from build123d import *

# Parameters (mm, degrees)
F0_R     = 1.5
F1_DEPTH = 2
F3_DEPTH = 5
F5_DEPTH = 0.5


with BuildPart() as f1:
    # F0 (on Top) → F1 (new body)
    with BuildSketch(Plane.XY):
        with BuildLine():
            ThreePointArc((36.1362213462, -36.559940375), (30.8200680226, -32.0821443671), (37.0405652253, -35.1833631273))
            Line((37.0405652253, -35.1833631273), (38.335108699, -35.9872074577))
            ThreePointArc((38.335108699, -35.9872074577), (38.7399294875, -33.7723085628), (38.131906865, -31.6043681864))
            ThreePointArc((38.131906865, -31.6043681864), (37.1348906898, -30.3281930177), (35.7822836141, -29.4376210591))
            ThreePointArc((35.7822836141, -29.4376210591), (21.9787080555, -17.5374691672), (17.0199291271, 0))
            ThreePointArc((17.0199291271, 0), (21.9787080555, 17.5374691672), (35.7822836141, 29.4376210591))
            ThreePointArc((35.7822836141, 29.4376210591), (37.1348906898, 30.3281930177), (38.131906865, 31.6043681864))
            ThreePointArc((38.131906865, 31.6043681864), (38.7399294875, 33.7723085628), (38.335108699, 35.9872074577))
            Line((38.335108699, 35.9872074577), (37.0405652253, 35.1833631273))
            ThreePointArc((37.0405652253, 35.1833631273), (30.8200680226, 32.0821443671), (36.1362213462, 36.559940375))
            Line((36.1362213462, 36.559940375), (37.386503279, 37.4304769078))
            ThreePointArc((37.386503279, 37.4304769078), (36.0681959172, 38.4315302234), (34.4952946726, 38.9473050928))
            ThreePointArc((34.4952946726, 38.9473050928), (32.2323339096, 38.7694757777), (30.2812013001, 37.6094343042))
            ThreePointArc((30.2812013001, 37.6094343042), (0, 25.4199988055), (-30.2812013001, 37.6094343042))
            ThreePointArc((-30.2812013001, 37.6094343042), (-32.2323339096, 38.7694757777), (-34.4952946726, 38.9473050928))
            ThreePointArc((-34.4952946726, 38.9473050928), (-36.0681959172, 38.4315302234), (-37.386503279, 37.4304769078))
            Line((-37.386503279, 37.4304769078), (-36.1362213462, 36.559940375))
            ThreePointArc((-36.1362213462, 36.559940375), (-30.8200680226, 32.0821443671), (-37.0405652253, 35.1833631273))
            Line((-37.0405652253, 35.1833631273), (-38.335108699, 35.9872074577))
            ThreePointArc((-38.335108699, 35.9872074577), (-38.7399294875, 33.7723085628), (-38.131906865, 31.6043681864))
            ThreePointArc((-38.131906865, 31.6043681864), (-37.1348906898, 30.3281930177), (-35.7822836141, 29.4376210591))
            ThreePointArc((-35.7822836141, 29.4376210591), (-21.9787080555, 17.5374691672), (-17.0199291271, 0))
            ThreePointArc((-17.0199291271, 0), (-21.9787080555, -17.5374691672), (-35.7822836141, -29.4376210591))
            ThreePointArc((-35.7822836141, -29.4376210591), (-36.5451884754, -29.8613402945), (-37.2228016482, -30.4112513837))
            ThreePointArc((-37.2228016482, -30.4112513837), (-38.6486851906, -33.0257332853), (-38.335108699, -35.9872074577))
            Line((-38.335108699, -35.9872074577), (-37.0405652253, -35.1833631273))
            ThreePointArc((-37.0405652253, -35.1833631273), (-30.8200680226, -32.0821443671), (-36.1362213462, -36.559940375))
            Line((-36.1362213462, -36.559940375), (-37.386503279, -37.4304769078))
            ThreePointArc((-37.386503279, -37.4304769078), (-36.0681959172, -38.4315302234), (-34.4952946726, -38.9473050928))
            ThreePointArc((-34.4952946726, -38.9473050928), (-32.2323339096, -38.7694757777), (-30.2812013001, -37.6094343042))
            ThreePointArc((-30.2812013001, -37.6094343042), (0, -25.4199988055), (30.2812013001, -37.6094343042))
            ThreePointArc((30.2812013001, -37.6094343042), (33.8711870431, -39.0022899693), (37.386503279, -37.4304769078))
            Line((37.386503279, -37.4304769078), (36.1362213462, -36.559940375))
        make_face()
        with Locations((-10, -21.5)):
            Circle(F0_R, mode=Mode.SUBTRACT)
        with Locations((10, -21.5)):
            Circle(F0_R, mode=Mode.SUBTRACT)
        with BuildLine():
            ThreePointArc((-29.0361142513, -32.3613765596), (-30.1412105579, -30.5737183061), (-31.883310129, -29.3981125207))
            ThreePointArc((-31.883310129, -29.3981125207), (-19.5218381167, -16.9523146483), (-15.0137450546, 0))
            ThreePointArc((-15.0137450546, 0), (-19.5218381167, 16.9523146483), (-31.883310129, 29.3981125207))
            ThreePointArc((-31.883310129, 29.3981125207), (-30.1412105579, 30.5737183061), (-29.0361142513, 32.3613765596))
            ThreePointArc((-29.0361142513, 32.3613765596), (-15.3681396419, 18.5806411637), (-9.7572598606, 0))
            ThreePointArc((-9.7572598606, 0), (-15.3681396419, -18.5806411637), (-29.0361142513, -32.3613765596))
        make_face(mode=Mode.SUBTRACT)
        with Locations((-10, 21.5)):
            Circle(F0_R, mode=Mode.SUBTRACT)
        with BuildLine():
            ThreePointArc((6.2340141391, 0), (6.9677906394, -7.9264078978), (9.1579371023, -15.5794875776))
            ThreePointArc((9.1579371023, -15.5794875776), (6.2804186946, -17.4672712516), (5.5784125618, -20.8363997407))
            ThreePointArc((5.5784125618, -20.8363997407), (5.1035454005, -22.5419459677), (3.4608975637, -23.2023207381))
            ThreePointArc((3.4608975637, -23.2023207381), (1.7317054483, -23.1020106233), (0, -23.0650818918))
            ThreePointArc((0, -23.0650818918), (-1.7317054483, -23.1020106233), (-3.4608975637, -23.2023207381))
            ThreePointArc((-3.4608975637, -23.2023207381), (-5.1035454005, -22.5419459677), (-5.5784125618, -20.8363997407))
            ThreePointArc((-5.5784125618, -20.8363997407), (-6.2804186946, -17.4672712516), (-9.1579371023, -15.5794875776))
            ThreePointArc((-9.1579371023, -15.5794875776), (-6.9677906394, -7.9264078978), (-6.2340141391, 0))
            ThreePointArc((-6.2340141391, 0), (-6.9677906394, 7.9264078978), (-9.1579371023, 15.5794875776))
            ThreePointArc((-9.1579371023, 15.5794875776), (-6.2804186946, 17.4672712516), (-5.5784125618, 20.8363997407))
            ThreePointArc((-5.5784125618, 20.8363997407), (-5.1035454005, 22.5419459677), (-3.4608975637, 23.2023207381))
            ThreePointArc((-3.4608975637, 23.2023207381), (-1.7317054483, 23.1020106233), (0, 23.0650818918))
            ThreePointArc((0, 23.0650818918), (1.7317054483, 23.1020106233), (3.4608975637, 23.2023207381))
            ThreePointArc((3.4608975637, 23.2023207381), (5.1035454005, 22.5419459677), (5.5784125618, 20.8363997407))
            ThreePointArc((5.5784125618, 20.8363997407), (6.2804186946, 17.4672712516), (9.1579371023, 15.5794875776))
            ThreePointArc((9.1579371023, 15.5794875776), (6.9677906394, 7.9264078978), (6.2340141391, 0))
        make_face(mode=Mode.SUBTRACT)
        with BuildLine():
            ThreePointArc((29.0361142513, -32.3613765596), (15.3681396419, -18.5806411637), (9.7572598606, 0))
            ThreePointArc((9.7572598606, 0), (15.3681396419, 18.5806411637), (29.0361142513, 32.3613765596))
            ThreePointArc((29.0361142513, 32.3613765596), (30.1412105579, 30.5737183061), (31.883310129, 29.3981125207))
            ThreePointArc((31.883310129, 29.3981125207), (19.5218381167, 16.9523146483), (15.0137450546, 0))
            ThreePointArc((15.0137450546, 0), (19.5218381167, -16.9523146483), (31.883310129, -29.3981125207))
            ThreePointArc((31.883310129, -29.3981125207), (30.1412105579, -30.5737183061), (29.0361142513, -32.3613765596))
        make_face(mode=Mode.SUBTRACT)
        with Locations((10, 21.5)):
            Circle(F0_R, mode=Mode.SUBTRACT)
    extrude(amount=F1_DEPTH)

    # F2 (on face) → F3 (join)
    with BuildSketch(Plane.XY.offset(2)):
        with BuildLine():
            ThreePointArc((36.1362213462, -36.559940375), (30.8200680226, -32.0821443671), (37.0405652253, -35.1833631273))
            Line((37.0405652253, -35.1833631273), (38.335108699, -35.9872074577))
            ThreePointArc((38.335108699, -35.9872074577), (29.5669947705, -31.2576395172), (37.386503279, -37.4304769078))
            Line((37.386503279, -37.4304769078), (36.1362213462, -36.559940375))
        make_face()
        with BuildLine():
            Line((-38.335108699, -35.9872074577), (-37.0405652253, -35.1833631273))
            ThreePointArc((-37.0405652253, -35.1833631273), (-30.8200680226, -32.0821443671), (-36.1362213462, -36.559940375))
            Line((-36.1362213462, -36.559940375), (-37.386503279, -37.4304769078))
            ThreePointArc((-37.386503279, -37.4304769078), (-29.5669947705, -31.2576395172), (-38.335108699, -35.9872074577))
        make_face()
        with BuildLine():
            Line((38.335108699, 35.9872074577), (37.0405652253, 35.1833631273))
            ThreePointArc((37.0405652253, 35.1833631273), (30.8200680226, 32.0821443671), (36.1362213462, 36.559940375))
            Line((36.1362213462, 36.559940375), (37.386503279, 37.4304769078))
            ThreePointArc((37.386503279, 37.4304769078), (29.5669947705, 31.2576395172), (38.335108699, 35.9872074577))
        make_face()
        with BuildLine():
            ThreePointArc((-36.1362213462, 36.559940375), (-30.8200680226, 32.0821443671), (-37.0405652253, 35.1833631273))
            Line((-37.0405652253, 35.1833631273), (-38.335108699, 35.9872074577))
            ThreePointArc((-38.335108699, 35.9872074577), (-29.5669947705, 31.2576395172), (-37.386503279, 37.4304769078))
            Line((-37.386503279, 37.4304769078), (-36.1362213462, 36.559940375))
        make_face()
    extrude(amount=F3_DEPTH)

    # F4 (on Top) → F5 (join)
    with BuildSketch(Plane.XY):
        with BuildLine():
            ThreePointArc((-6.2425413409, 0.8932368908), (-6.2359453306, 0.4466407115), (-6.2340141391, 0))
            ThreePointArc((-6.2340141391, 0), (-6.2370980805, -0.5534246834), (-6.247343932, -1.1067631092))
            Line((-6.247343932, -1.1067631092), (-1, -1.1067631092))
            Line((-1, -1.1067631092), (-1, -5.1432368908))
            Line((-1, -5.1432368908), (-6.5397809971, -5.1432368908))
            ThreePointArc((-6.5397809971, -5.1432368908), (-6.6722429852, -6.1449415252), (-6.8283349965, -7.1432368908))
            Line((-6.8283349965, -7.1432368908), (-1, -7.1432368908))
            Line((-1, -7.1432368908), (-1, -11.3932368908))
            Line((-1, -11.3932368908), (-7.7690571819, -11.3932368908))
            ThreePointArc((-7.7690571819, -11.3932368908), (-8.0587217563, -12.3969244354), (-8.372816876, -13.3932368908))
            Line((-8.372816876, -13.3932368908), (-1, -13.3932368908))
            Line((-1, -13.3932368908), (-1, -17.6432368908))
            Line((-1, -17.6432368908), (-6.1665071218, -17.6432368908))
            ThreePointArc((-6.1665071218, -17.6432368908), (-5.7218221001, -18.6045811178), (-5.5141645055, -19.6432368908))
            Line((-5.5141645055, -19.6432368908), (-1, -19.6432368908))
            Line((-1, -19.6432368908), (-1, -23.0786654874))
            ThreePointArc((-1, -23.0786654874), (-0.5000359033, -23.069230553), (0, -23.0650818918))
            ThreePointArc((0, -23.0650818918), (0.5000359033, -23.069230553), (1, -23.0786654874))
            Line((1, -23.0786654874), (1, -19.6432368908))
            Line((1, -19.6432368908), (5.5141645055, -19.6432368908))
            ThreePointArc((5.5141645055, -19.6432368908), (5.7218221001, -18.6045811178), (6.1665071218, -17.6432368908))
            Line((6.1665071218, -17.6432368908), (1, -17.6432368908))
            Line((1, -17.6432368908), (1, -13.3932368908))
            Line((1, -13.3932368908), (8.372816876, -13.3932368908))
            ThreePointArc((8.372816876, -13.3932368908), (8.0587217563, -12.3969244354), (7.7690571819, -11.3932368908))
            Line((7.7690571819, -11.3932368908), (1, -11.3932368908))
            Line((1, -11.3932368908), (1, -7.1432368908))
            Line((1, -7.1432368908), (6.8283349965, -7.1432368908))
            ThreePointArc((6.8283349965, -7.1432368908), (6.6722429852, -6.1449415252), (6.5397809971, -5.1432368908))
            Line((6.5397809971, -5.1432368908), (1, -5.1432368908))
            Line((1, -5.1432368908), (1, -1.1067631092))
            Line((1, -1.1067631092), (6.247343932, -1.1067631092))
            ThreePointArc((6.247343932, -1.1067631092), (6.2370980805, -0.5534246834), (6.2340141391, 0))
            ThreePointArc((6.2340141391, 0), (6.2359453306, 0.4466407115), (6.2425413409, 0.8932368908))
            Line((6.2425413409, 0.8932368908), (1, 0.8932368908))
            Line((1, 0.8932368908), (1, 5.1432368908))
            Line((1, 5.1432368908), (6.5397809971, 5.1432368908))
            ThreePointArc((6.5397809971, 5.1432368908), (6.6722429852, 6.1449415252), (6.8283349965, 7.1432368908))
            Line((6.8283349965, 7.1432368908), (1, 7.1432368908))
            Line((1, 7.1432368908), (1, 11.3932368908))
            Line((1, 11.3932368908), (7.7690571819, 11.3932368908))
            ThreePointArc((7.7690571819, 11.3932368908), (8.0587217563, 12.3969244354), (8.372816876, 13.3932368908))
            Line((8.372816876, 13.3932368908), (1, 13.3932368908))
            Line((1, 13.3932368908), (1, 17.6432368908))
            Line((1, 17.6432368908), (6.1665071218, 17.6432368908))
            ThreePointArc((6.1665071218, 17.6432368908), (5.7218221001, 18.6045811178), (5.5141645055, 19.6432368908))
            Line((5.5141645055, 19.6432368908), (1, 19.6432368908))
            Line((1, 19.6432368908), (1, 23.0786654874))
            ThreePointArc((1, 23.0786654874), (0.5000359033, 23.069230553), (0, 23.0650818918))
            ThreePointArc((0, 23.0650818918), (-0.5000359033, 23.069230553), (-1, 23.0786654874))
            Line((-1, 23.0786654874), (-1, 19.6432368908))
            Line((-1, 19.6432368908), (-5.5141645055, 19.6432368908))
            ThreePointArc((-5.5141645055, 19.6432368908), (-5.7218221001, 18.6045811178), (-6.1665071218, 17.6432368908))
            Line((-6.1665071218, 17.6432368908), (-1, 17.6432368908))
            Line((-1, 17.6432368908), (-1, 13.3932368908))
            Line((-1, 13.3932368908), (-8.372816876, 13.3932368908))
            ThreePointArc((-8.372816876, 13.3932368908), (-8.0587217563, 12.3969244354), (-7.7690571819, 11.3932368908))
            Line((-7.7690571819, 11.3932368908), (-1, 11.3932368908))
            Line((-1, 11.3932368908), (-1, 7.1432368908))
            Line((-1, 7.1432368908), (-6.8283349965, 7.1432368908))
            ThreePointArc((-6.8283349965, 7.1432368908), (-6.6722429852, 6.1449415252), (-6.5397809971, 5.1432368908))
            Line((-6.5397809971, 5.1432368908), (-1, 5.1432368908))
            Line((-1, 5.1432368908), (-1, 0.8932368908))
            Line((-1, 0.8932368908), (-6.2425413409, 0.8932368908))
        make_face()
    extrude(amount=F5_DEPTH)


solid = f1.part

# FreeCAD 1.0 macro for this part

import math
import FreeCAD as App
import Part
import Sketcher

V = App.Vector
Q = App.Units.Quantity

doc = App.newDocument("Part")
params = doc.addObject("Spreadsheet::Sheet", "Params")
for row, (alias, value) in enumerate([
    ("sketch1_diameter", "3 mm"),
    ("sketch1_radius", "5 mm"),
    ("sketch1_radius2", "2 mm"),
    ("sketch1_radius3", "3.5 mm"),
    ("sketch1_radius4", "4.5 mm"),
    ("pad1_length", "2 mm"),
    ("sketch2_radius", "5 mm"),
    ("sketch2_radius2", "3.5 mm"),
    ("pad2_length", "5 mm"),
    ("sketch3_radius", "4.5 mm"),
    ("sketch3_height", "4.25 mm"),
    ("pad3_length", "0.5 mm"),
], start=1):
    params.set(f"A{row}", alias)
    params.set(f"B{row}", "=" + value)
    params.setAlias(f"B{row}", alias)

body = doc.addObject("PartDesign::Body", "Body")

# Sketch on XY plane
sketch1 = body.newObject("Sketcher::SketchObject", "Sketch")
sketch1.AttachmentSupport = (doc.getObject("XY_Plane"), [""])
sketch1.MapMode = "FlatFace"
sketch1.addGeometry([
    Part.ArcOfCircle(Part.Circle(V(33.745295, -34.003875, 0), V(0, 0, 1), 3.5), math.radians(-19.693995), math.radians(313.088084)),  # 0
    Part.LineSegment(V(37.040565, -35.183363, 0), V(38.335109, -35.987207, 0)),  # 1
    Part.ArcOfCircle(Part.Circle(V(33.745295, -34.003875, 0), V(0, 0, 1), 5), math.radians(-23.369948), math.radians(28.678961)),  # 2
    Part.ArcOfCircle(Part.Circle(V(33.745295, -34.003875, 0), V(0, 0, 1), 5), math.radians(28.678962), math.radians(65.958528)),  # 3
    Part.ArcOfCircle(Part.Circle(V(48.683787, -0.516727, 0), V(0, 0, 1), 31.668074), math.radians(179.065065), math.radians(245.958528)),  # 4
    Part.ArcOfCircle(Part.Circle(V(48.683787, 0.516727, 0), V(0, 0, 1), 31.668074), math.radians(114.041472), math.radians(180.934935)),  # 5
    Part.ArcOfCircle(Part.Circle(V(33.745295, 34.003875, 0), V(0, 0, 1), 5), math.radians(-65.958528), math.radians(-28.678962)),  # 6
    Part.ArcOfCircle(Part.Circle(V(33.745295, 34.003875, 0), V(0, 0, 1), 5), math.radians(-28.678961), math.radians(23.369948)),  # 7
    Part.LineSegment(V(38.335109, 35.987207, 0), V(37.040565, 35.183363, 0)),  # 8
    Part.ArcOfCircle(Part.Circle(V(33.745295, 34.003875, 0), V(0, 0, 1), 3.5), math.radians(46.911916), math.radians(379.693995)),  # 9
    Part.LineSegment(V(36.136221, 36.55994, 0), V(37.386503, 37.430477, 0)),  # 10
    Part.ArcOfCircle(Part.Circle(V(33.745295, 34.003875, 0), V(0, 0, 1), 5), math.radians(43.260807), math.radians(81.373073)),  # 11
    Part.ArcOfCircle(Part.Circle(V(33.745295, 34.003875, 0), V(0, 0, 1), 5), math.radians(81.373073), math.radians(133.853648)),  # 12
    Part.ArcOfCircle(Part.Circle(V(0, 69.127252, 0), V(0, 0, 1), 43.707253), math.radians(-133.853648), math.radians(-46.146352)),  # 13
    Part.ArcOfCircle(Part.Circle(V(-33.745295, 34.003875, 0), V(0, 0, 1), 5), math.radians(46.146352), math.radians(98.626927)),  # 14
    Part.ArcOfCircle(Part.Circle(V(-33.745295, 34.003875, 0), V(0, 0, 1), 5), math.radians(98.626927), math.radians(136.739193)),  # 15
    Part.LineSegment(V(-37.386503, 37.430477, 0), V(-36.136221, 36.55994, 0)),  # 16
    Part.ArcOfCircle(Part.Circle(V(-33.745295, 34.003875, 0), V(0, 0, 1), 3.5), math.radians(160.306005), math.radians(493.088084)),  # 17
    Part.LineSegment(V(-37.040565, 35.183363, 0), V(-38.335109, 35.987207, 0)),  # 18
    Part.ArcOfCircle(Part.Circle(V(-33.745295, 34.003875, 0), V(0, 0, 1), 5), math.radians(156.630052), math.radians(208.678961)),  # 19
    Part.ArcOfCircle(Part.Circle(V(-33.745295, 34.003875, 0), V(0, 0, 1), 5), math.radians(-151.321038), math.radians(-114.041472)),  # 20
    Part.ArcOfCircle(Part.Circle(V(-48.683787, 0.516727, 0), V(0, 0, 1), 31.668074), math.radians(-0.934935), math.radians(65.958528)),  # 21
    Part.ArcOfCircle(Part.Circle(V(-48.683787, -0.516727, 0), V(0, 0, 1), 31.668074), math.radians(-65.958528), math.radians(0.934935)),  # 22
    Part.ArcOfCircle(Part.Circle(V(-33.745295, -34.003875, 0), V(0, 0, 1), 5), math.radians(114.041472), math.radians(134.067185)),  # 23
    Part.ArcOfCircle(Part.Circle(V(-33.745295, -34.003875, 0), V(0, 0, 1), 5), math.radians(134.067185), math.radians(203.369948)),  # 24
    Part.LineSegment(V(-38.335109, -35.987207, 0), V(-37.040565, -35.183363, 0)),  # 25
    Part.ArcOfCircle(Part.Circle(V(-33.745295, -34.003875, 0), V(0, 0, 1), 3.5), math.radians(-133.088084), math.radians(199.693995)),  # 26
    Part.LineSegment(V(-36.136221, -36.55994, 0), V(-37.386503, -37.430477, 0)),  # 27
    Part.ArcOfCircle(Part.Circle(V(-33.745295, -34.003875, 0), V(0, 0, 1), 5), math.radians(-136.739193), math.radians(-98.626927)),  # 28
    Part.ArcOfCircle(Part.Circle(V(-33.745295, -34.003875, 0), V(0, 0, 1), 5), math.radians(-98.626927), math.radians(-46.146352)),  # 29
    Part.ArcOfCircle(Part.Circle(V(0, -69.127252, 0), V(0, 0, 1), 43.707253), math.radians(46.146352), math.radians(133.853648)),  # 30
    Part.ArcOfCircle(Part.Circle(V(33.745295, -34.003875, 0), V(0, 0, 1), 5), math.radians(-133.853648), math.radians(-43.260807)),  # 31
    Part.LineSegment(V(37.386503, -37.430477, 0), V(36.136221, -36.55994, 0)),  # 32
    Part.Circle(V(-10, -21.5, 0), V(0, 0, 1), 1.5),  # 33
    Part.ArcOfCircle(Part.Circle(V(-49.877336, 1.977748, 0), V(0, 0, 1), 40.168794), math.radians(-58.745452), math.radians(-2.822152)),  # 34
    Part.ArcOfCircle(Part.Circle(V(-33.74665, -34.037936, 0), V(0, 0, 1), 5), math.radians(19.591508), math.radians(68.119747)),  # 35
    Part.ArcOfCircle(Part.Circle(V(-48.997195, -0.038424, 0), V(0, 0, 1), 33.983471), math.radians(-59.761913), math.radians(0.064783)),  # 36
    Part.ArcOfCircle(Part.Circle(V(-48.997195, 0.038424, 0), V(0, 0, 1), 33.983471), math.radians(-0.064783), math.radians(59.761913)),  # 37
    Part.ArcOfCircle(Part.Circle(V(-33.74665, 34.037936, 0), V(0, 0, 1), 5), math.radians(-68.119747), math.radians(-19.591508)),  # 38
    Part.ArcOfCircle(Part.Circle(V(-49.877336, -1.977748, 0), V(0, 0, 1), 40.168794), math.radians(2.822152), math.radians(58.745452)),  # 39
    Part.Circle(V(10, -21.5, 0), V(0, 0, 1), 1.5),  # 40
    Part.Circle(V(-10, 21.5, 0), V(0, 0, 1), 1.5),  # 41
    Part.ArcOfCircle(Part.Circle(V(48.997195, 0.038424, 0), V(0, 0, 1), 42.763198), math.radians(158.689532), math.radians(180.051483)),  # 42
    Part.ArcOfCircle(Part.Circle(V(48.997195, -0.038424, 0), V(0, 0, 1), 42.763198), math.radians(179.948517), math.radians(201.310468)),  # 43
    Part.ArcOfCircle(Part.Circle(V(10, -20, 0), V(0, 0, 1), 4.5), math.radians(100.785055), math.radians(190.711662)),  # 44
    Part.ArcOfCircle(Part.Circle(V(3.613263, -21.208133, 0), V(0, 0, 1), 2), math.radians(-94.36917), math.radians(10.711662)),  # 45
    Part.ArcOfCircle(Part.Circle(V(-0.142381, -70.362849, 0), V(0, 0, 1), 47.297981), math.radians(85.63083), math.radians(89.827522)),  # 46
    Part.ArcOfCircle(Part.Circle(V(0.142381, -70.362849, 0), V(0, 0, 1), 47.297981), math.radians(90.172478), math.radians(94.36917)),  # 47
    Part.ArcOfCircle(Part.Circle(V(-3.613263, -21.208133, 0), V(0, 0, 1), 2), math.radians(169.288338), math.radians(274.36917)),  # 48
    Part.ArcOfCircle(Part.Circle(V(-10, -20, 0), V(0, 0, 1), 4.5), math.radians(-10.711662), math.radians(79.214945)),  # 49
    Part.ArcOfCircle(Part.Circle(V(-48.997195, -0.038424, 0), V(0, 0, 1), 42.763198), math.radians(-21.310468), math.radians(0.051483)),  # 50
    Part.ArcOfCircle(Part.Circle(V(-48.997195, 0.038424, 0), V(0, 0, 1), 42.763198), math.radians(-0.051483), math.radians(21.310468)),  # 51
    Part.ArcOfCircle(Part.Circle(V(-10, 20, 0), V(0, 0, 1), 4.5), math.radians(-79.214945), math.radians(10.711662)),  # 52
    Part.ArcOfCircle(Part.Circle(V(-3.613263, 21.208133, 0), V(0, 0, 1), 2), math.radians(85.63083), math.radians(190.711662)),  # 53
    Part.ArcOfCircle(Part.Circle(V(0.142381, 70.362849, 0), V(0, 0, 1), 47.297981), math.radians(-94.36917), math.radians(-90.172478)),  # 54
    Part.ArcOfCircle(Part.Circle(V(-0.142381, 70.362849, 0), V(0, 0, 1), 47.297981), math.radians(-89.827522), math.radians(-85.63083)),  # 55
    Part.ArcOfCircle(Part.Circle(V(3.613263, 21.208133, 0), V(0, 0, 1), 2), math.radians(-10.711662), math.radians(94.36917)),  # 56
    Part.ArcOfCircle(Part.Circle(V(10, 20, 0), V(0, 0, 1), 4.5), math.radians(169.288338), math.radians(259.214945)),  # 57
    Part.ArcOfCircle(Part.Circle(V(33.74665, -34.037936, 0), V(0, 0, 1), 5), math.radians(111.880253), math.radians(160.408492)),  # 58
    Part.ArcOfCircle(Part.Circle(V(49.877336, 1.977748, 0), V(0, 0, 1), 40.168794), math.radians(-177.177848), math.radians(-121.254548)),  # 59
    Part.ArcOfCircle(Part.Circle(V(49.877336, -1.977748, 0), V(0, 0, 1), 40.168794), math.radians(121.254548), math.radians(177.177848)),  # 60
    Part.ArcOfCircle(Part.Circle(V(33.74665, 34.037936, 0), V(0, 0, 1), 5), math.radians(-160.408492), math.radians(-111.880253)),  # 61
    Part.ArcOfCircle(Part.Circle(V(48.997195, 0.038424, 0), V(0, 0, 1), 33.983471), math.radians(120.238087), math.radians(180.064783)),  # 62
    Part.ArcOfCircle(Part.Circle(V(48.997195, -0.038424, 0), V(0, 0, 1), 33.983471), math.radians(179.935217), math.radians(239.761913)),  # 63
    Part.Circle(V(10, 21.5, 0), V(0, 0, 1), 1.5),  # 64
], False)
sketch1.addConstraint([
    Sketcher.Constraint("Coincident", 0, 1, 1, 1),
    Sketcher.Constraint("Coincident", 1, 2, 2, 1),
    Sketcher.Constraint("Tangent", 2, 2, 3, 1),
    Sketcher.Constraint("Tangent", 3, 2, 4, 2),
    Sketcher.Constraint("Coincident", 4, 1, 5, 2),
    Sketcher.Constraint("Tangent", 5, 1, 6, 1),
    Sketcher.Constraint("Tangent", 6, 2, 7, 1),
    Sketcher.Constraint("Coincident", 7, 2, 8, 1),
    Sketcher.Constraint("Coincident", 8, 2, 9, 2),
    Sketcher.Constraint("Coincident", 9, 1, 10, 1),
    Sketcher.Constraint("Coincident", 10, 2, 11, 1),
    Sketcher.Constraint("Tangent", 11, 2, 12, 1),
    Sketcher.Constraint("Tangent", 12, 2, 13, 2),
    Sketcher.Constraint("Tangent", 13, 1, 14, 1),
    Sketcher.Constraint("Tangent", 14, 2, 15, 1),
    Sketcher.Constraint("Coincident", 15, 2, 16, 1),
    Sketcher.Constraint("Coincident", 16, 2, 17, 2),
    Sketcher.Constraint("Coincident", 17, 1, 18, 1),
    Sketcher.Constraint("Coincident", 18, 2, 19, 1),
    Sketcher.Constraint("Tangent", 19, 2, 20, 1),
    Sketcher.Constraint("Tangent", 20, 2, 21, 2),
    Sketcher.Constraint("Coincident", 21, 1, 22, 2),
    Sketcher.Constraint("Tangent", 22, 1, 23, 1),
    Sketcher.Constraint("Tangent", 23, 2, 24, 1),
    Sketcher.Constraint("Coincident", 24, 2, 25, 1),
    Sketcher.Constraint("Coincident", 25, 2, 26, 2),
    Sketcher.Constraint("Coincident", 26, 1, 27, 1),
    Sketcher.Constraint("Coincident", 27, 2, 28, 1),
    Sketcher.Constraint("Tangent", 28, 2, 29, 1),
    Sketcher.Constraint("Tangent", 29, 2, 30, 2),
    Sketcher.Constraint("Tangent", 30, 1, 31, 1),
    Sketcher.Constraint("Coincident", 31, 2, 32, 1),
    Sketcher.Constraint("Coincident", 32, 2, 0, 2),
    Sketcher.Constraint("Coincident", 34, 1, 35, 1),
    Sketcher.Constraint("Coincident", 35, 2, 36, 1),
    Sketcher.Constraint("Coincident", 36, 2, 37, 1),
    Sketcher.Constraint("Coincident", 37, 2, 38, 1),
    Sketcher.Constraint("Coincident", 38, 2, 39, 2),
    Sketcher.Constraint("Coincident", 39, 1, 34, 2),
    Sketcher.Constraint("Coincident", 42, 2, 43, 1),
    Sketcher.Constraint("Coincident", 43, 2, 44, 1),
    Sketcher.Constraint("Tangent", 44, 2, 45, 2),
    Sketcher.Constraint("Tangent", 45, 1, 46, 1),
    Sketcher.Constraint("Coincident", 46, 2, 47, 1),
    Sketcher.Constraint("Tangent", 47, 2, 48, 2),
    Sketcher.Constraint("Tangent", 48, 1, 49, 1),
    Sketcher.Constraint("Coincident", 49, 2, 50, 1),
    Sketcher.Constraint("Coincident", 50, 2, 51, 1),
    Sketcher.Constraint("Coincident", 51, 2, 52, 1),
    Sketcher.Constraint("Tangent", 52, 2, 53, 2),
    Sketcher.Constraint("Tangent", 53, 1, 54, 1),
    Sketcher.Constraint("Coincident", 54, 2, 55, 1),
    Sketcher.Constraint("Tangent", 55, 2, 56, 2),
    Sketcher.Constraint("Tangent", 56, 1, 57, 1),
    Sketcher.Constraint("Coincident", 57, 2, 42, 1),
    Sketcher.Constraint("Coincident", 58, 2, 59, 2),
    Sketcher.Constraint("Coincident", 59, 1, 60, 2),
    Sketcher.Constraint("Coincident", 60, 1, 61, 1),
    Sketcher.Constraint("Coincident", 61, 2, 62, 1),
    Sketcher.Constraint("Coincident", 62, 2, 63, 1),
    Sketcher.Constraint("Coincident", 63, 2, 58, 1),
    Sketcher.Constraint("Coincident", 2, 3, 0, 3),
    Sketcher.Constraint("Coincident", 9, 3, 6, 3),
    Sketcher.Constraint("Coincident", 11, 3, 6, 3),
    Sketcher.Constraint("Coincident", 17, 3, 14, 3),
    Sketcher.Constraint("Coincident", 19, 3, 14, 3),
    Sketcher.Constraint("Coincident", 26, 3, 23, 3),
    Sketcher.Constraint("Coincident", 28, 3, 23, 3),
    Sketcher.Constraint("Coincident", 31, 3, 0, 3),
    Sketcher.Constraint("Coincident", 50, 3, 36, 3),
    Sketcher.Constraint("Coincident", 51, 3, 37, 3),
    Sketcher.Constraint("Coincident", 62, 3, 42, 3),
    Sketcher.Constraint("Coincident", 63, 3, 43, 3),
    Sketcher.Constraint("Equal", 2, 3),
    Sketcher.Constraint("Equal", 4, 5),
    Sketcher.Constraint("Equal", 3, 6),
    Sketcher.Constraint("Equal", 6, 7),
    Sketcher.Constraint("Equal", 0, 9),
    Sketcher.Constraint("Equal", 7, 11),
    Sketcher.Constraint("Equal", 11, 12),
    Sketcher.Constraint("Equal", 12, 14),
    Sketcher.Constraint("Equal", 14, 15),
    Sketcher.Constraint("Equal", 9, 17),
    Sketcher.Constraint("Equal", 15, 19),
    Sketcher.Constraint("Equal", 19, 20),
    Sketcher.Constraint("Equal", 5, 21),
    Sketcher.Constraint("Equal", 21, 22),
    Sketcher.Constraint("Equal", 20, 23),
    Sketcher.Constraint("Equal", 23, 24),
    Sketcher.Constraint("Equal", 17, 26),
    Sketcher.Constraint("Equal", 24, 28),
    Sketcher.Constraint("Equal", 28, 29),
    Sketcher.Constraint("Equal", 13, 30),
    Sketcher.Constraint("Equal", 29, 31),
    Sketcher.Constraint("Equal", 31, 35),
    Sketcher.Constraint("Equal", 36, 37),
    Sketcher.Constraint("Equal", 35, 38),
    Sketcher.Constraint("Equal", 34, 39),
    Sketcher.Constraint("Equal", 33, 40),
    Sketcher.Constraint("Equal", 40, 41),
    Sketcher.Constraint("Equal", 42, 43),
    Sketcher.Constraint("Equal", 46, 47),
    Sketcher.Constraint("Equal", 45, 48),
    Sketcher.Constraint("Equal", 44, 49),
    Sketcher.Constraint("Equal", 43, 50),
    Sketcher.Constraint("Equal", 50, 51),
    Sketcher.Constraint("Equal", 49, 52),
    Sketcher.Constraint("Equal", 48, 53),
    Sketcher.Constraint("Equal", 47, 54),
    Sketcher.Constraint("Equal", 54, 55),
    Sketcher.Constraint("Equal", 53, 56),
    Sketcher.Constraint("Equal", 52, 57),
    Sketcher.Constraint("Equal", 38, 58),
    Sketcher.Constraint("Equal", 39, 59),
    Sketcher.Constraint("Equal", 59, 60),
    Sketcher.Constraint("Equal", 58, 61),
    Sketcher.Constraint("Equal", 37, 62),
    Sketcher.Constraint("Equal", 62, 63),
    Sketcher.Constraint("Equal", 41, 64),
    Sketcher.Constraint("Symmetric", 0, 3, 14, 3, -1, 1),
    Sketcher.Constraint("Symmetric", 5, 3, 22, 3, -1, 1),
    Sketcher.Constraint("Symmetric", 40, 3, 41, 3, -1, 1),
    Sketcher.Constraint("Symmetric", 36, 3, 42, 3, -1, 1),
    Sketcher.Constraint("Symmetric", 37, 3, 43, 3, -1, 1),
    Sketcher.Constraint("Symmetric", 44, 3, 52, 3, -1, 1),
    Sketcher.Constraint("Symmetric", 46, 3, 54, 3, -1, 1),
    Sketcher.Constraint("Symmetric", 47, 3, 55, 3, -1, 1),
    Sketcher.Constraint("Symmetric", 49, 3, 57, 3, -1, 1),
    Sketcher.Constraint("Symmetric", 38, 3, 58, 3, -1, 1),
    Sketcher.Constraint("Symmetric", 39, 3, 59, 3, -1, 1),
    Sketcher.Constraint("Symmetric", 34, 3, 60, 3, -1, 1),
    Sketcher.Constraint("Symmetric", 35, 3, 61, 3, -1, 1),
    Sketcher.Constraint("Symmetric", 33, 3, 64, 3, -1, 1),
    Sketcher.Constraint("Symmetric", 7, 2, 24, 2, -1, 1),
    Sketcher.Constraint("Symmetric", 6, 3, 14, 3, -2),
    Sketcher.Constraint("Symmetric", 33, 3, 40, 3, -2),
    Sketcher.Constraint("Symmetric", 37, 3, 42, 3, -2),
    Sketcher.Constraint("Symmetric", 46, 3, 47, 3, -2),
    Sketcher.Constraint("Symmetric", 44, 3, 49, 3, -2),
    Sketcher.Constraint("Symmetric", 35, 3, 58, 3, -2),
    Sketcher.Constraint("Symmetric", 34, 3, 59, 3, -2),
    Sketcher.Constraint("Symmetric", 4, 1, 21, 1, -2),
    Sketcher.Constraint("Parallel", 1, 18),
    Sketcher.Constraint("Parallel", 8, 25),
    Sketcher.Constraint("Parallel", 10, 27),
    Sketcher.Constraint("Parallel", 16, 32),
    Sketcher.Constraint("Horizontal", 11, 2, 14, 2),
    Sketcher.Constraint("Horizontal", 10, 2, 15, 2),
    Sketcher.Constraint("Horizontal", 9, 1, 16, 2),
    Sketcher.Constraint("Horizontal", 8, 2, 17, 1),
    Sketcher.Constraint("Horizontal", 7, 2, 18, 2),
    Sketcher.Constraint("Horizontal", 6, 2, 19, 2),
    Sketcher.Constraint("Horizontal", 1, 2, 24, 2),
    Sketcher.Constraint("Horizontal", 27, 2, 31, 2),
    Sketcher.Constraint("Vertical", 40, 3, 44, 3),
    Sketcher.Constraint("Vertical", 2, 2, 6, 2),
    Sketcher.Constraint("Vertical", 16, 2, 26, 1),
    Sketcher.Constraint("Vertical", 14, 2, 28, 2),
    Sketcher.Constraint("Diameter", 33, Q("3 mm")),
    Sketcher.Constraint("Radius", 2, Q("5 mm")),
    Sketcher.Constraint("Radius", 45, Q("2 mm")),
    Sketcher.Constraint("Radius", 0, Q("3.5 mm")),
    Sketcher.Constraint("Radius", 44, Q("4.5 mm")),
    Sketcher.Constraint("DistanceX", 33, 3, -1, 1, Q("10 mm")),
    Sketcher.Constraint("DistanceY", 44, 3, -1, 1, Q("20 mm")),
    Sketcher.Constraint("DistanceY", 33, 3, -1, 1, Q("21.5 mm")),
    Sketcher.Constraint("Radius", 36, Q("33.983471 mm")),
    Sketcher.Constraint("Radius", 46, Q("47.297981 mm")),
    Sketcher.Constraint("Radius", 4, Q("31.668074 mm")),
    Sketcher.Constraint("Radius", 13, Q("43.707253 mm")),
    Sketcher.Constraint("Radius", 34, Q("40.168794 mm")),
    Sketcher.Constraint("Radius", 42, Q("42.763198 mm")),
    Sketcher.Constraint("DistanceX", -1, 1, 12, 2, Q("30.281201 mm")),
    Sketcher.Constraint("DistanceX", 23, 2, -1, 1, Q("37.222802 mm")),
    Sketcher.Constraint("DistanceY", 44, 2, -1, 1, Q("20.8364 mm")),
    Sketcher.Constraint("DistanceX", 35, 3, -1, 1, Q("33.74665 mm")),
    Sketcher.Constraint("DistanceX", 46, 3, -1, 1, Q("0.142381 mm")),
    Sketcher.Constraint("DistanceX", -1, 1, 1, 2, Q("38.335109 mm")),
    Sketcher.Constraint("DistanceY", 2, 2, -1, 1, Q("31.604368 mm")),
    Sketcher.Constraint("DistanceY", 3, 2, -1, 1, Q("29.437621 mm")),
    Sketcher.Constraint("DistanceX", -1, 1, 4, 1, Q("17.019929 mm")),
    Sketcher.Constraint("DistanceX", -1, 1, 9, 1, Q("36.136221 mm")),
    Sketcher.Constraint("DistanceX", 35, 2, -1, 1, Q("31.88331 mm")),
    Sketcher.Constraint("DistanceX", 39, 1, -1, 1, Q("9.75726 mm")),
    Sketcher.Constraint("Distance", 1, Q("1.523814 mm")),
    Sketcher.Constraint("Distance", 10, Q("1.523496 mm")),
    Sketcher.Constraint("DistanceX", 34, 3, -1, 1, Q("49.877336 mm")),
    Sketcher.Constraint("DistanceY", 35, 3, -1, 1, Q("34.037936 mm")),
    Sketcher.Constraint("DistanceX", 36, 3, -1, 1, Q("48.997195 mm")),
    Sketcher.Constraint("DistanceX", -1, 1, 11, 2, Q("34.495295 mm")),
])
sketch1.setExpression("Constraints[158]", "Params.sketch1_diameter")
sketch1.setExpression("Constraints[159]", "Params.sketch1_radius")
sketch1.setExpression("Constraints[160]", "Params.sketch1_radius2")
sketch1.setExpression("Constraints[161]", "Params.sketch1_radius3")
sketch1.setExpression("Constraints[162]", "Params.sketch1_radius4")
pad1 = body.newObject("PartDesign::Pad", "Pad")
pad1.Profile = sketch1
pad1.setExpression("Length", "Params.pad1_length")

# Sketch on XY plane
sketch2 = body.newObject("Sketcher::SketchObject", "Sketch001")
sketch2.AttachmentSupport = (doc.getObject("XY_Plane"), [""])
sketch2.MapMode = "FlatFace"
sketch2.AttachmentOffset = App.Placement(V(0, 0, 2), App.Rotation())
sketch2.addGeometry([
    Part.ArcOfCircle(Part.Circle(V(33.7, -34, 0), V(0, 0, 1), 3.5), math.radians(-20), math.radians(313)),  # 0
    Part.LineSegment(V(37, -35.2, 0), V(38.3, -36, 0)),  # 1
    Part.ArcOfCircle(Part.Circle(V(33.7, -34, 0), V(0, 0, 1), 5), math.radians(-23), math.radians(317)),  # 2
    Part.LineSegment(V(37.4, -37.4, 0), V(36.1, -36.6, 0)),  # 3
    Part.LineSegment(V(-38.3, -36, 0), V(-37, -35.2, 0)),  # 4
    Part.ArcOfCircle(Part.Circle(V(-33.7, -34, 0), V(0, 0, 1), 3.5), math.radians(-133), math.radians(200)),  # 5
    Part.LineSegment(V(-36.1, -36.6, 0), V(-37.4, -37.4, 0)),  # 6
    Part.ArcOfCircle(Part.Circle(V(-33.7, -34, 0), V(0, 0, 1), 5), math.radians(-137), math.radians(203)),  # 7
    Part.LineSegment(V(38.3, 36, 0), V(37, 35.2, 0)),  # 8
    Part.ArcOfCircle(Part.Circle(V(33.7, 34, 0), V(0, 0, 1), 3.5), math.radians(47), math.radians(380)),  # 9
    Part.LineSegment(V(36.1, 36.6, 0), V(37.4, 37.4, 0)),  # 10
    Part.ArcOfCircle(Part.Circle(V(33.7, 34, 0), V(0, 0, 1), 5), math.radians(43), math.radians(383)),  # 11
    Part.ArcOfCircle(Part.Circle(V(-33.7, 34, 0), V(0, 0, 1), 3.5), math.radians(160), math.radians(493)),  # 12
    Part.LineSegment(V(-37, 35.2, 0), V(-38.3, 36, 0)),  # 13
    Part.ArcOfCircle(Part.Circle(V(-33.7, 34, 0), V(0, 0, 1), 5), math.radians(157), math.radians(497)),  # 14
    Part.LineSegment(V(-37.4, 37.4, 0), V(-36.1, 36.6, 0)),  # 15
], False)
sketch2.addConstraint([
    Sketcher.Constraint("Coincident", 0, 1, 1, 1),
    Sketcher.Constraint("Coincident", 1, 2, 2, 1),
    Sketcher.Constraint("Coincident", 2, 2, 3, 1),
    Sketcher.Constraint("Coincident", 3, 2, 0, 2),
    Sketcher.Constraint("Coincident", 4, 2, 5, 2),
    Sketcher.Constraint("Coincident", 5, 1, 6, 1),
    Sketcher.Constraint("Coincident", 6, 2, 7, 1),
    Sketcher.Constraint("Coincident", 7, 2, 4, 1),
    Sketcher.Constraint("Coincident", 8, 2, 9, 2),
    Sketcher.Constraint("Coincident", 9, 1, 10, 1),
    Sketcher.Constraint("Coincident", 10, 2, 11, 1),
    Sketcher.Constraint("Coincident", 11, 2, 8, 1),
    Sketcher.Constraint("Coincident", 12, 1, 13, 1),
    Sketcher.Constraint("Coincident", 13, 2, 14, 1),
    Sketcher.Constraint("Coincident", 14, 2, 15, 1),
    Sketcher.Constraint("Coincident", 15, 2, 12, 2),
    Sketcher.Constraint("Coincident", 2, 3, 0, 3),
    Sketcher.Constraint("Coincident", 7, 3, 5, 3),
    Sketcher.Constraint("Coincident", 11, 3, 9, 3),
    Sketcher.Constraint("Coincident", 14, 3, 12, 3),
    Sketcher.Constraint("Equal", 0, 5),
    Sketcher.Constraint("Equal", 2, 7),
    Sketcher.Constraint("Equal", 5, 9),
    Sketcher.Constraint("Equal", 7, 11),
    Sketcher.Constraint("Equal", 9, 12),
    Sketcher.Constraint("Equal", 11, 14),
    Sketcher.Constraint("Symmetric", 5, 3, 9, 3, -1, 1),
    Sketcher.Constraint("Symmetric", 0, 3, 12, 3, -1, 1),
    Sketcher.Constraint("Symmetric", 0, 3, 5, 3, -2),
    Sketcher.Constraint("Parallel", 4, 8),
    Sketcher.Constraint("Parallel", 6, 10),
    Sketcher.Constraint("Parallel", 1, 13),
    Sketcher.Constraint("Parallel", 3, 15),
    Sketcher.Constraint("Horizontal", 0, 1, 4, 2),
    Sketcher.Constraint("Horizontal", 3, 2, 5, 1),
    Sketcher.Constraint("Horizontal", 2, 2, 6, 2),
    Sketcher.Constraint("Horizontal", 1, 2, 7, 2),
    Sketcher.Constraint("Horizontal", 8, 2, 12, 1),
    Sketcher.Constraint("Horizontal", 10, 2, 14, 2),
    Sketcher.Constraint("Vertical", 0, 1, 8, 2),
    Sketcher.Constraint("Vertical", 3, 2, 9, 1),
    Sketcher.Constraint("Radius", 2, Q("5 mm")),
    Sketcher.Constraint("Radius", 0, Q("3.5 mm")),
    Sketcher.Constraint("DistanceY", 2, 2, 0, 3, Q("3.426602 mm")),
    Sketcher.Constraint("DistanceX", -1, 1, 1, 2, Q("38.335109 mm")),
    Sketcher.Constraint("DistanceX", -1, 1, 3, 2, Q("36.136221 mm")),
    Sketcher.Constraint("DistanceY", 3, 2, -1, 1, Q("36.55994 mm")),
    Sketcher.Constraint("DistanceX", 5, 3, 0, 3, Q("67.490589 mm")),
    Sketcher.Constraint("DistanceX", 0, 3, 0, 1, Q("3.295271 mm")),
])
sketch2.setExpression("Constraints[41]", "Params.sketch2_radius")
sketch2.setExpression("Constraints[42]", "Params.sketch2_radius2")
pad2 = body.newObject("PartDesign::Pad", "Pad001")
pad2.Profile = sketch2
pad2.setExpression("Length", "Params.pad2_length")

# Sketch on XY plane
sketch3 = body.newObject("Sketcher::SketchObject", "Sketch002")
sketch3.AttachmentSupport = (doc.getObject("XY_Plane"), [""])
sketch3.MapMode = "FlatFace"
sketch3.addGeometry([
    Part.ArcOfCircle(Part.Circle(V(-49, 0, 0), V(0, 0, 1), 42.8), math.radians(-0.05), math.radians(1.15)),  # 0
    Part.ArcOfCircle(Part.Circle(V(-49, 0, 0), V(0, 0, 1), 42.8), math.radians(-1.43), math.radians(0.05)),  # 1
    Part.LineSegment(V(-6.2, -1.1, 0), V(-1, -1.1, 0)),  # 2
    Part.LineSegment(V(-1, -1.1, 0), V(-1, -5.1, 0)),  # 3
    Part.LineSegment(V(-1, -5.1, 0), V(-6.5, -5.1, 0)),  # 4
    Part.ArcOfCircle(Part.Circle(V(-49, 0, 0), V(0, 0, 1), 42.8), math.radians(-9.56), math.radians(-6.86)),  # 5
    Part.LineSegment(V(-6.8, -7.1, 0), V(-1, -7.1, 0)),  # 6
    Part.LineSegment(V(-1, -7.1, 0), V(-1, -11.4, 0)),  # 7
    Part.LineSegment(V(-1, -11.4, 0), V(-7.8, -11.4, 0)),  # 8
    Part.ArcOfCircle(Part.Circle(V(-49, 0, 0), V(0, 0, 1), 42.8), math.radians(-18.2), math.radians(-15.4)),  # 9
    Part.LineSegment(V(-8.4, -13.4, 0), V(-1, -13.4, 0)),  # 10
    Part.LineSegment(V(-1, -13.4, 0), V(-1, -17.6, 0)),  # 11
    Part.LineSegment(V(-1, -17.6, 0), V(-6.2, -17.6, 0)),  # 12
    Part.ArcOfCircle(Part.Circle(V(-10, -20, 0), V(0, 0, 1), 4.5), math.radians(5), math.radians(32)),  # 13
    Part.LineSegment(V(-5.5, -19.6, 0), V(-1, -19.6, 0)),  # 14
    Part.LineSegment(V(-1, -19.6, 0), V(-1, -23.1, 0)),  # 15
    Part.ArcOfCircle(Part.Circle(V(0.1, -70.4, 0), V(0, 0, 1), 47.3), math.radians(90.17), math.radians(91.38)),  # 16
    Part.ArcOfCircle(Part.Circle(V(-0.1, -70.4, 0), V(0, 0, 1), 47.3), math.radians(88.62), math.radians(89.83)),  # 17
    Part.LineSegment(V(1, -23.1, 0), V(1, -19.6, 0)),  # 18
    Part.LineSegment(V(1, -19.6, 0), V(5.5, -19.6, 0)),  # 19
    Part.ArcOfCircle(Part.Circle(V(10, -20, 0), V(0, 0, 1), 4.5), math.radians(148), math.radians(175)),  # 20
    Part.LineSegment(V(6.2, -17.6, 0), V(1, -17.6, 0)),  # 21
    Part.LineSegment(V(1, -17.6, 0), V(1, -13.4, 0)),  # 22
    Part.LineSegment(V(1, -13.4, 0), V(8.4, -13.4, 0)),  # 23
    Part.ArcOfCircle(Part.Circle(V(49, 0, 0), V(0, 0, 1), 42.8), math.radians(-164.6), math.radians(-161.8)),  # 24
    Part.LineSegment(V(7.8, -11.4, 0), V(1, -11.4, 0)),  # 25
    Part.LineSegment(V(1, -11.4, 0), V(1, -7.1, 0)),  # 26
    Part.LineSegment(V(1, -7.1, 0), V(6.8, -7.1, 0)),  # 27
    Part.ArcOfCircle(Part.Circle(V(49, 0, 0), V(0, 0, 1), 42.8), math.radians(-173.14), math.radians(-170.44)),  # 28
    Part.LineSegment(V(6.5, -5.1, 0), V(1, -5.1, 0)),  # 29
    Part.LineSegment(V(1, -5.1, 0), V(1, -1.1, 0)),  # 30
    Part.LineSegment(V(1, -1.1, 0), V(6.2, -1.1, 0)),  # 31
    Part.ArcOfCircle(Part.Circle(V(49, 0, 0), V(0, 0, 1), 42.8), math.radians(179.95), math.radians(181.43)),  # 32
    Part.ArcOfCircle(Part.Circle(V(49, 0, 0), V(0, 0, 1), 42.8), math.radians(178.85), math.radians(180.05)),  # 33
    Part.LineSegment(V(6.2, 0.9, 0), V(1, 0.9, 0)),  # 34
    Part.LineSegment(V(1, 0.9, 0), V(1, 5.1, 0)),  # 35
    Part.LineSegment(V(1, 5.1, 0), V(6.5, 5.1, 0)),  # 36
    Part.ArcOfCircle(Part.Circle(V(49, 0, 0), V(0, 0, 1), 42.8), math.radians(170.44), math.radians(173.14)),  # 37
    Part.LineSegment(V(6.8, 7.1, 0), V(1, 7.1, 0)),  # 38
    Part.LineSegment(V(1, 7.1, 0), V(1, 11.4, 0)),  # 39
    Part.LineSegment(V(1, 11.4, 0), V(7.8, 11.4, 0)),  # 40
    Part.ArcOfCircle(Part.Circle(V(49, 0, 0), V(0, 0, 1), 42.8), math.radians(161.8), math.radians(164.6)),  # 41
    Part.LineSegment(V(8.4, 13.4, 0), V(1, 13.4, 0)),  # 42
    Part.LineSegment(V(1, 13.4, 0), V(1, 17.6, 0)),  # 43
    Part.LineSegment(V(1, 17.6, 0), V(6.2, 17.6, 0)),  # 44
    Part.ArcOfCircle(Part.Circle(V(10, 20, 0), V(0, 0, 1), 4.5), math.radians(-175), math.radians(-148)),  # 45
    Part.LineSegment(V(5.5, 19.6, 0), V(1, 19.6, 0)),  # 46
    Part.LineSegment(V(1, 19.6, 0), V(1, 23.1, 0)),  # 47
    Part.ArcOfCircle(Part.Circle(V(-0.1, 70.4, 0), V(0, 0, 1), 47.3), math.radians(-89.83), math.radians(-88.62)),  # 48
    Part.ArcOfCircle(Part.Circle(V(0.1, 70.4, 0), V(0, 0, 1), 47.3), math.radians(-91.38), math.radians(-90.17)),  # 49
    Part.LineSegment(V(-1, 23.1, 0), V(-1, 19.6, 0)),  # 50
    Part.LineSegment(V(-1, 19.6, 0), V(-5.5, 19.6, 0)),  # 51
    Part.ArcOfCircle(Part.Circle(V(-10, 20, 0), V(0, 0, 1), 4.5), math.radians(-32), math.radians(-5)),  # 52
    Part.LineSegment(V(-6.2, 17.6, 0), V(-1, 17.6, 0)),  # 53
    Part.LineSegment(V(-1, 17.6, 0), V(-1, 13.4, 0)),  # 54
    Part.LineSegment(V(-1, 13.4, 0), V(-8.4, 13.4, 0)),  # 55
    Part.ArcOfCircle(Part.Circle(V(-49, 0, 0), V(0, 0, 1), 42.8), math.radians(15.4), math.radians(18.2)),  # 56
    Part.LineSegment(V(-7.8, 11.4, 0), V(-1, 11.4, 0)),  # 57
    Part.LineSegment(V(-1, 11.4, 0), V(-1, 7.1, 0)),  # 58
    Part.LineSegment(V(-1, 7.1, 0), V(-6.8, 7.1, 0)),  # 59
    Part.ArcOfCircle(Part.Circle(V(-49, 0, 0), V(0, 0, 1), 42.8), math.radians(6.86), math.radians(9.56)),  # 60
    Part.LineSegment(V(-6.5, 5.1, 0), V(-1, 5.1, 0)),  # 61
    Part.LineSegment(V(-1, 5.1, 0), V(-1, 0.9, 0)),  # 62
    Part.LineSegment(V(-1, 0.9, 0), V(-6.2, 0.9, 0)),  # 63
], False)
sketch3.addConstraint([
    Sketcher.Constraint("Coincident", 0, 1, 1, 2),
    Sketcher.Constraint("Coincident", 1, 1, 2, 1),
    Sketcher.Constraint("Coincident", 2, 2, 3, 1),
    Sketcher.Constraint("Coincident", 3, 2, 4, 1),
    Sketcher.Constraint("Coincident", 4, 2, 5, 2),
    Sketcher.Constraint("Coincident", 5, 1, 6, 1),
    Sketcher.Constraint("Coincident", 6, 2, 7, 1),
    Sketcher.Constraint("Coincident", 7, 2, 8, 1),
    Sketcher.Constraint("Coincident", 8, 2, 9, 2),
    Sketcher.Constraint("Coincident", 9, 1, 10, 1),
    Sketcher.Constraint("Coincident", 10, 2, 11, 1),
    Sketcher.Constraint("Coincident", 11, 2, 12, 1),
    Sketcher.Constraint("Coincident", 12, 2, 13, 2),
    Sketcher.Constraint("Coincident", 13, 1, 14, 1),
    Sketcher.Constraint("Coincident", 14, 2, 15, 1),
    Sketcher.Constraint("Coincident", 15, 2, 16, 2),
    Sketcher.Constraint("Coincident", 16, 1, 17, 2),
    Sketcher.Constraint("Coincident", 17, 1, 18, 1),
    Sketcher.Constraint("Coincident", 18, 2, 19, 1),
    Sketcher.Constraint("Coincident", 19, 2, 20, 2),
    Sketcher.Constraint("Coincident", 20, 1, 21, 1),
    Sketcher.Constraint("Coincident", 21, 2, 22, 1),
    Sketcher.Constraint("Coincident", 22, 2, 23, 1),
    Sketcher.Constraint("Coincident", 23, 2, 24, 2),
    Sketcher.Constraint("Coincident", 24, 1, 25, 1),
    Sketcher.Constraint("Coincident", 25, 2, 26, 1),
    Sketcher.Constraint("Coincident", 26, 2, 27, 1),
    Sketcher.Constraint("Coincident", 27, 2, 28, 2),
    Sketcher.Constraint("Coincident", 28, 1, 29, 1),
    Sketcher.Constraint("Coincident", 29, 2, 30, 1),
    Sketcher.Constraint("Coincident", 30, 2, 31, 1),
    Sketcher.Constraint("Coincident", 31, 2, 32, 2),
    Sketcher.Constraint("Coincident", 32, 1, 33, 2),
    Sketcher.Constraint("Coincident", 33, 1, 34, 1),
    Sketcher.Constraint("Coincident", 34, 2, 35, 1),
    Sketcher.Constraint("Coincident", 35, 2, 36, 1),
    Sketcher.Constraint("Coincident", 36, 2, 37, 2),
    Sketcher.Constraint("Coincident", 37, 1, 38, 1),
    Sketcher.Constraint("Coincident", 38, 2, 39, 1),
    Sketcher.Constraint("Coincident", 39, 2, 40, 1),
    Sketcher.Constraint("Coincident", 40, 2, 41, 2),
    Sketcher.Constraint("Coincident", 41, 1, 42, 1),
    Sketcher.Constraint("Coincident", 42, 2, 43, 1),
    Sketcher.Constraint("Coincident", 43, 2, 44, 1),
    Sketcher.Constraint("Coincident", 44, 2, 45, 2),
    Sketcher.Constraint("Coincident", 45, 1, 46, 1),
    Sketcher.Constraint("Coincident", 46, 2, 47, 1),
    Sketcher.Constraint("Coincident", 47, 2, 48, 2),
    Sketcher.Constraint("Coincident", 48, 1, 49, 2),
    Sketcher.Constraint("Coincident", 49, 1, 50, 1),
    Sketcher.Constraint("Coincident", 50, 2, 51, 1),
    Sketcher.Constraint("Coincident", 51, 2, 52, 2),
    Sketcher.Constraint("Coincident", 52, 1, 53, 1),
    Sketcher.Constraint("Coincident", 53, 2, 54, 1),
    Sketcher.Constraint("Coincident", 54, 2, 55, 1),
    Sketcher.Constraint("Coincident", 55, 2, 56, 2),
    Sketcher.Constraint("Coincident", 56, 1, 57, 1),
    Sketcher.Constraint("Coincident", 57, 2, 58, 1),
    Sketcher.Constraint("Coincident", 58, 2, 59, 1),
    Sketcher.Constraint("Coincident", 59, 2, 60, 2),
    Sketcher.Constraint("Coincident", 60, 1, 61, 1),
    Sketcher.Constraint("Coincident", 61, 2, 62, 1),
    Sketcher.Constraint("Coincident", 62, 2, 63, 1),
    Sketcher.Constraint("Coincident", 63, 2, 0, 2),
    Sketcher.Constraint("Horizontal", 2),
    Sketcher.Constraint("Vertical", 3),
    Sketcher.Constraint("Horizontal", 4),
    Sketcher.Constraint("Horizontal", 6),
    Sketcher.Constraint("Vertical", 7),
    Sketcher.Constraint("Horizontal", 8),
    Sketcher.Constraint("Horizontal", 10),
    Sketcher.Constraint("Vertical", 11),
    Sketcher.Constraint("Horizontal", 12),
    Sketcher.Constraint("Horizontal", 14),
    Sketcher.Constraint("Vertical", 15),
    Sketcher.Constraint("Vertical", 18),
    Sketcher.Constraint("Horizontal", 19),
    Sketcher.Constraint("Horizontal", 21),
    Sketcher.Constraint("Vertical", 22),
    Sketcher.Constraint("Horizontal", 23),
    Sketcher.Constraint("Horizontal", 25),
    Sketcher.Constraint("Vertical", 26),
    Sketcher.Constraint("Horizontal", 27),
    Sketcher.Constraint("Horizontal", 29),
    Sketcher.Constraint("Vertical", 30),
    Sketcher.Constraint("Horizontal", 31),
    Sketcher.Constraint("Horizontal", 34),
    Sketcher.Constraint("Vertical", 35),
    Sketcher.Constraint("Horizontal", 36),
    Sketcher.Constraint("Horizontal", 38),
    Sketcher.Constraint("Vertical", 39),
    Sketcher.Constraint("Horizontal", 40),
    Sketcher.Constraint("Horizontal", 42),
    Sketcher.Constraint("Vertical", 43),
    Sketcher.Constraint("Horizontal", 44),
    Sketcher.Constraint("Horizontal", 46),
    Sketcher.Constraint("Vertical", 47),
    Sketcher.Constraint("Vertical", 50),
    Sketcher.Constraint("Horizontal", 51),
    Sketcher.Constraint("Horizontal", 53),
    Sketcher.Constraint("Vertical", 54),
    Sketcher.Constraint("Horizontal", 55),
    Sketcher.Constraint("Horizontal", 57),
    Sketcher.Constraint("Vertical", 58),
    Sketcher.Constraint("Horizontal", 59),
    Sketcher.Constraint("Horizontal", 61),
    Sketcher.Constraint("Vertical", 62),
    Sketcher.Constraint("Horizontal", 63),
    Sketcher.Constraint("Coincident", 5, 3, 1, 3),
    Sketcher.Constraint("Coincident", 9, 3, 1, 3),
    Sketcher.Constraint("Coincident", 28, 3, 24, 3),
    Sketcher.Constraint("Coincident", 32, 3, 24, 3),
    Sketcher.Constraint("Coincident", 37, 3, 33, 3),
    Sketcher.Constraint("Coincident", 41, 3, 33, 3),
    Sketcher.Constraint("Coincident", 56, 3, 0, 3),
    Sketcher.Constraint("Coincident", 60, 3, 0, 3),
    Sketcher.Constraint("Equal", 0, 1),
    Sketcher.Constraint("Equal", 1, 5),
    Sketcher.Constraint("Equal", 5, 9),
    Sketcher.Constraint("Equal", 16, 17),
    Sketcher.Constraint("Equal", 13, 20),
    Sketcher.Constraint("Equal", 9, 24),
    Sketcher.Constraint("Equal", 24, 28),
    Sketcher.Constraint("Equal", 28, 32),
    Sketcher.Constraint("Equal", 32, 33),
    Sketcher.Constraint("Equal", 33, 37),
    Sketcher.Constraint("Equal", 37, 41),
    Sketcher.Constraint("Equal", 20, 45),
    Sketcher.Constraint("Equal", 17, 48),
    Sketcher.Constraint("Equal", 48, 49),
    Sketcher.Constraint("Equal", 45, 52),
    Sketcher.Constraint("Equal", 41, 56),
    Sketcher.Constraint("Equal", 56, 60),
    Sketcher.Constraint("Symmetric", 0, 3, 24, 3, -1, 1),
    Sketcher.Constraint("Symmetric", 1, 3, 33, 3, -1, 1),
    Sketcher.Constraint("Symmetric", 13, 3, 45, 3, -1, 1),
    Sketcher.Constraint("Symmetric", 16, 3, 48, 3, -1, 1),
    Sketcher.Constraint("Symmetric", 17, 3, 49, 3, -1, 1),
    Sketcher.Constraint("Symmetric", 20, 3, 52, 3, -1, 1),
    Sketcher.Constraint("Symmetric", 3, 2, 35, 2, -1, 1),
    Sketcher.Constraint("Symmetric", 6, 2, 38, 2, -1, 1),
    Sketcher.Constraint("Symmetric", 10, 2, 42, 2, -1, 1),
    Sketcher.Constraint("Symmetric", 14, 2, 46, 2, -1, 1),
    Sketcher.Constraint("Symmetric", 18, 2, 50, 2, -1, 1),
    Sketcher.Constraint("Symmetric", 21, 2, 53, 2, -1, 1),
    Sketcher.Constraint("Symmetric", 25, 2, 57, 2, -1, 1),
    Sketcher.Constraint("Symmetric", 29, 2, 61, 2, -1, 1),
    Sketcher.Constraint("Symmetric", 16, 3, 17, 3, -2),
    Sketcher.Constraint("Symmetric", 13, 3, 20, 3, -2),
    Sketcher.Constraint("Symmetric", 1, 3, 24, 3, -2),
    Sketcher.Constraint("Symmetric", 14, 2, 18, 2, -2),
    Sketcher.Constraint("Symmetric", 11, 2, 21, 2, -2),
    Sketcher.Constraint("Symmetric", 7, 2, 25, 2, -2),
    Sketcher.Constraint("Symmetric", 3, 2, 29, 2, -2),
    Sketcher.Constraint("Horizontal", 10, 2, 22, 2),
    Sketcher.Constraint("Horizontal", 6, 2, 26, 2),
    Sketcher.Constraint("Horizontal", 2, 2, 30, 2),
    Sketcher.Constraint("Horizontal", 44, 2, 52, 1),
    Sketcher.Constraint("Horizontal", 42, 2, 54, 2),
    Sketcher.Constraint("Horizontal", 40, 2, 56, 1),
    Sketcher.Constraint("Horizontal", 38, 2, 58, 2),
    Sketcher.Constraint("Horizontal", 34, 2, 62, 2),
    Sketcher.Constraint("Vertical", 3, 2, 6, 2),
    Sketcher.Constraint("Vertical", 7, 2, 10, 2),
    Sketcher.Constraint("Vertical", 11, 2, 14, 2),
    Sketcher.Constraint("Equal", 7, 11),
    Sketcher.Constraint("Equal", 26, 35),
    Sketcher.Constraint("Radius", 13, Q("4.5 mm")),
    Sketcher.Constraint("DistanceX", 13, 3, -1, 1, Q("10 mm")),
    Sketcher.Constraint("DistanceY", 13, 3, -1, 1, Q("20 mm")),
    Sketcher.Constraint("DistanceX", 2, 2, -1, 1, Q("1 mm")),
    Sketcher.Constraint("DistanceY", 7, 2, 7, 1, Q("4.25 mm")),
    Sketcher.Constraint("Radius", 16, Q("47.297981 mm")),
    Sketcher.Constraint("Radius", 0, Q("42.763197 mm")),
    Sketcher.Constraint("DistanceX", 4, 2, 4, 1, Q("5.539781 mm")),
    Sketcher.Constraint("DistanceX", 34, 2, 34, 1, Q("5.242541 mm")),
    Sketcher.Constraint("DistanceY", 15, 2, 15, 1, Q("3.435429 mm")),
    Sketcher.Constraint("DistanceX", 2, 1, 2, 2, Q("5.247344 mm")),
    Sketcher.Constraint("DistanceX", 6, 1, 6, 2, Q("5.828335 mm")),
    Sketcher.Constraint("DistanceX", 10, 1, 10, 2, Q("7.372817 mm")),
    Sketcher.Constraint("DistanceX", 12, 2, 12, 1, Q("5.166507 mm")),
    Sketcher.Constraint("DistanceX", 14, 1, 14, 2, Q("4.514165 mm")),
    Sketcher.Constraint("DistanceX", -1, 1, 16, 3, Q("0.142381 mm")),
])
sketch3.setExpression("Constraints[167]", "Params.sketch3_radius")
sketch3.setExpression("Constraints[171]", "Params.sketch3_height")
pad3 = body.newObject("PartDesign::Pad", "Pad002")
pad3.Profile = sketch3
pad3.setExpression("Length", "Params.pad3_length")

doc.recompute()
